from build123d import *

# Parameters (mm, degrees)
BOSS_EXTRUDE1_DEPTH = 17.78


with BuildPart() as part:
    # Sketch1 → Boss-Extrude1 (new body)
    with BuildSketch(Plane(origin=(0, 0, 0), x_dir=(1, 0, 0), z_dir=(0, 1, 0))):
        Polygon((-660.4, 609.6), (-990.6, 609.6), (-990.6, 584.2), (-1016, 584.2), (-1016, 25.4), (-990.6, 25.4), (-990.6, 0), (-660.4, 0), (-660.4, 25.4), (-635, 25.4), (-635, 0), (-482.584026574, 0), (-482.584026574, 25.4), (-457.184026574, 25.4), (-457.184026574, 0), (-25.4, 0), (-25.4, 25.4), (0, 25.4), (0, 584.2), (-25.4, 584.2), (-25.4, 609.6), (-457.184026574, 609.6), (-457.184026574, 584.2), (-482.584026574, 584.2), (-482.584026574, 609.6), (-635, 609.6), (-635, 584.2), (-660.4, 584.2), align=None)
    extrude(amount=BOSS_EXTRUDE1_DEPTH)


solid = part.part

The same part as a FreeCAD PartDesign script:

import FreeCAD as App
import Part
import Sketcher
Q = App.Units.Quantity

doc = App.newDocument("Part")
body = doc.addObject("PartDesign::Body", "Body")

sketch1 = body.newObject("Sketcher::SketchObject", "Sketch")
sketch1.AttachmentSupport = (doc.getObject("XZ_Plane"), [""])
sketch1.MapMode = "FlatFace"
sketch1.addGeometry([
    Part.LineSegment(App.Vector(-660, -610, 0), App.Vector(-991, -610, 0)),
    Part.LineSegment(App.Vector(-991, -610, 0), App.Vector(-991, -584, 0)),
    Part.LineSegment(App.Vector(-991, -584, 0), App.Vector(-1016, -584, 0)),
    Part.LineSegment(App.Vector(-1016, -584, 0), App.Vector(-1016, -25, 0)),
    Part.LineSegment(App.Vector(-1016, -25, 0), App.Vector(-991, -25, 0)),
    Part.LineSegment(App.Vector(-991, -25, 0), App.Vector(-991, 0, 0)),
    Part.LineSegment(App.Vector(-991, 0, 0), App.Vector(-660, 0, 0)),
    Part.LineSegment(App.Vector(-660, 0, 0), App.Vector(-660, -25, 0)),
    Part.LineSegment(App.Vector(-660, -25, 0), App.Vector(-635, -25, 0)),
    Part.LineSegment(App.Vector(-635, -25, 0), App.Vector(-635, 0, 0)),
    Part.LineSegment(App.Vector(-635, 0, 0), App.Vector(-483, 0, 0)),
    Part.LineSegment(App.Vector(-483, 0, 0), App.Vector(-483, -25, 0)),
    Part.LineSegment(App.Vector(-483, -25, 0), App.Vector(-457, -25, 0)),
    Part.LineSegment(App.Vector(-457, -25, 0), App.Vector(-457, 0, 0)),
    Part.LineSegment(App.Vector(-457, 0, 0), App.Vector(-25, 0, 0)),
    Part.LineSegment(App.Vector(-25, 0, 0), App.Vector(-25, -25, 0)),
    Part.LineSegment(App.Vector(-25, -25, 0), App.Vector(0, -25, 0)),
    Part.LineSegment(App.Vector(0, -25, 0), App.Vector(0, -584, 0)),
    Part.LineSegment(App.Vector(0, -584, 0), App.Vector(-25, -584, 0)),
    Part.LineSegment(App.Vector(-25, -584, 0), App.Vector(-25, -610, 0)),
    Part.LineSegment(App.Vector(-25, -610, 0), App.Vector(-457, -610, 0)),
    Part.LineSegment(App.Vector(-457, -610, 0), App.Vector(-457, -584, 0)),
    Part.LineSegment(App.Vector(-457, -584, 0), App.Vector(-483, -584, 0)),
    Part.LineSegment(App.Vector(-483, -584, 0), App.Vector(-483, -610, 0)),
    Part.LineSegment(App.Vector(-483, -610, 0), App.Vector(-635, -610, 0)),
    Part.LineSegment(App.Vector(-635, -610, 0), App.Vector(-635, -584, 0)),
    Part.LineSegment(App.Vector(-635, -584, 0), App.Vector(-660, -584, 0)),
    Part.LineSegment(App.Vector(-660, -584, 0), App.Vector(-660, -610, 0)),
], False)
sketch1.addConstraint([
    Sketcher.Constraint("Coincident", 0, 2, 1, 1),
    Sketcher.Constraint("Coincident", 1, 2, 2, 1),
    Sketcher.Constraint("Coincident", 2, 2, 3, 1),
    Sketcher.Constraint("Coincident", 3, 2, 4, 1),
    Sketcher.Constraint("Coincident", 4, 2, 5, 1),
    Sketcher.Constraint("Coincident", 5, 2, 6, 1),
    Sketcher.Constraint("Coincident", 6, 2, 7, 1),
    Sketcher.Constraint("Coincident", 7, 2, 8, 1),
    Sketcher.Constraint("Coincident", 8, 2, 9, 1),
    Sketcher.Constraint("Coincident", 9, 2, 10, 1),
    Sketcher.Constraint("Coincident", 10, 2, 11, 1),
    Sketcher.Constraint("Coincident", 11, 2, 12, 1),
    Sketcher.Constraint("Coincident", 12, 2, 13, 1),
    Sketcher.Constraint("Coincident", 13, 2, 14, 1),
    Sketcher.Constraint("Coincident", 14, 2, 15, 1),
    Sketcher.Constraint("Coincident", 15, 2, 16, 1),
    Sketcher.Constraint("Coincident", 16, 2, 17, 1),
    Sketcher.Constraint("Coincident", 17, 2, 18, 1),
    Sketcher.Constraint("Coincident", 18, 2, 19, 1),
    Sketcher.Constraint("Coincident", 19, 2, 20, 1),
    Sketcher.Constraint("Coincident", 20, 2, 21, 1),
    Sketcher.Constraint("Coincident", 21, 2, 22, 1),
    Sketcher.Constraint("Coincident", 22, 2, 23, 1),
    Sketcher.Constraint("Coincident", 23, 2, 24, 1),
    Sketcher.Constraint("Coincident", 24, 2, 25, 1),
    Sketcher.Constraint("Coincident", 25, 2, 26, 1),
    Sketcher.Constraint("Coincident", 26, 2, 27, 1),
    Sketcher.Constraint("Coincident", 27, 2, 0, 1),
    Sketcher.Constraint("Horizontal", 0),
    Sketcher.Constraint("Vertical", 1),
    Sketcher.Constraint("Horizontal", 2),
    Sketcher.Constraint("Vertical", 3),
    Sketcher.Constraint("Horizontal", 4),
    Sketcher.Constraint("Vertical", 5),
    Sketcher.Constraint("Horizontal", 6),
    Sketcher.Constraint("Vertical", 7),
    Sketcher.Constraint("Horizontal", 8),
    Sketcher.Constraint("Vertical", 9),
    Sketcher.Constraint("Horizontal", 10),
    Sketcher.Constraint("Vertical", 11),
    Sketcher.Constraint("Horizontal", 12),
    Sketcher.Constraint("Vertical", 13),
    Sketcher.Constraint("Horizontal", 14),
    Sketcher.Constraint("Vertical", 15),
    Sketcher.Constraint("Horizontal", 16),
    Sketcher.Constraint("Vertical", 17),
    Sketcher.Constraint("Horizontal", 18),
    Sketcher.Constraint("Vertical", 19),
    Sketcher.Constraint("Horizontal", 20),
    Sketcher.Constraint("Vertical", 21),
    Sketcher.Constraint("Horizontal", 22),
    Sketcher.Constraint("Vertical", 23),
    Sketcher.Constraint("Horizontal", 24),
    Sketcher.Constraint("Vertical", 25),
    Sketcher.Constraint("Horizontal", 26),
    Sketcher.Constraint("Vertical", 27),
    Sketcher.Constraint("PointOnObject", 5, 2, -1),
    Sketcher.Constraint("PointOnObject", 9, 2, -1),
    Sketcher.Constraint("PointOnObject", 13, 2, -1),
    Sketcher.Constraint("PointOnObject", 16, 2, -2),
    Sketcher.Constraint("Horizontal", 4, 2, 7, 2),
    Sketcher.Constraint("Horizontal", 8, 2, 11, 2),
    Sketcher.Constraint("Horizontal", 12, 2, 15, 2),
    Sketcher.Constraint("Horizontal", 2, 2, 17, 2),
    Sketcher.Constraint("Horizontal", 0, 2, 19, 2),
    Sketcher.Constraint("Horizontal", 18, 2, 21, 2),
    Sketcher.Constraint("Horizontal", 20, 2, 23, 2),
    Sketcher.Constraint("Horizontal", 22, 2, 25, 2),
    Sketcher.Constraint("Vertical", 1, 2, 4, 2),
    Sketcher.Constraint("Vertical", 15, 2, 18, 2),
    Sketcher.Constraint("Vertical", 13, 2, 20, 2),
    Sketcher.Constraint("Vertical", 11, 2, 22, 2),
    Sketcher.Constraint("Vertical", 9, 2, 24, 2),
    Sketcher.Constraint("Vertical", 7, 2, 26, 2),
    Sketcher.Constraint("Equal", 4, 8),
    Sketcher.Constraint("Equal", 8, 12),
    Sketcher.Constraint("Equal", 12, 16),
    Sketcher.Constraint("Equal", 26, 1),
    Sketcher.Constraint("Equal", 1, 5),
    Sketcher.Constraint("DistanceX", 0, 2, 0, 1, Q("13 in")),
    Sketcher.Constraint("DistanceX", 2, 2, 2, 1, Q("1 in")),
    Sketcher.Constraint("DistanceY", 3, 1, 3, 2, Q("22 in")),
    Sketcher.Constraint("DistanceX", 0, 2, -1, 1, Q("39 in")),
    Sketcher.Constraint("DistanceX", 10, 1, 10, 2, 152.415973),
])
pad1 = body.newObject("PartDesign::Pad", "Pad")
pad1.Profile = sketch1
pad1.Length = Q("0.7 in")
pad1.Reversed = True

doc.recompute()
